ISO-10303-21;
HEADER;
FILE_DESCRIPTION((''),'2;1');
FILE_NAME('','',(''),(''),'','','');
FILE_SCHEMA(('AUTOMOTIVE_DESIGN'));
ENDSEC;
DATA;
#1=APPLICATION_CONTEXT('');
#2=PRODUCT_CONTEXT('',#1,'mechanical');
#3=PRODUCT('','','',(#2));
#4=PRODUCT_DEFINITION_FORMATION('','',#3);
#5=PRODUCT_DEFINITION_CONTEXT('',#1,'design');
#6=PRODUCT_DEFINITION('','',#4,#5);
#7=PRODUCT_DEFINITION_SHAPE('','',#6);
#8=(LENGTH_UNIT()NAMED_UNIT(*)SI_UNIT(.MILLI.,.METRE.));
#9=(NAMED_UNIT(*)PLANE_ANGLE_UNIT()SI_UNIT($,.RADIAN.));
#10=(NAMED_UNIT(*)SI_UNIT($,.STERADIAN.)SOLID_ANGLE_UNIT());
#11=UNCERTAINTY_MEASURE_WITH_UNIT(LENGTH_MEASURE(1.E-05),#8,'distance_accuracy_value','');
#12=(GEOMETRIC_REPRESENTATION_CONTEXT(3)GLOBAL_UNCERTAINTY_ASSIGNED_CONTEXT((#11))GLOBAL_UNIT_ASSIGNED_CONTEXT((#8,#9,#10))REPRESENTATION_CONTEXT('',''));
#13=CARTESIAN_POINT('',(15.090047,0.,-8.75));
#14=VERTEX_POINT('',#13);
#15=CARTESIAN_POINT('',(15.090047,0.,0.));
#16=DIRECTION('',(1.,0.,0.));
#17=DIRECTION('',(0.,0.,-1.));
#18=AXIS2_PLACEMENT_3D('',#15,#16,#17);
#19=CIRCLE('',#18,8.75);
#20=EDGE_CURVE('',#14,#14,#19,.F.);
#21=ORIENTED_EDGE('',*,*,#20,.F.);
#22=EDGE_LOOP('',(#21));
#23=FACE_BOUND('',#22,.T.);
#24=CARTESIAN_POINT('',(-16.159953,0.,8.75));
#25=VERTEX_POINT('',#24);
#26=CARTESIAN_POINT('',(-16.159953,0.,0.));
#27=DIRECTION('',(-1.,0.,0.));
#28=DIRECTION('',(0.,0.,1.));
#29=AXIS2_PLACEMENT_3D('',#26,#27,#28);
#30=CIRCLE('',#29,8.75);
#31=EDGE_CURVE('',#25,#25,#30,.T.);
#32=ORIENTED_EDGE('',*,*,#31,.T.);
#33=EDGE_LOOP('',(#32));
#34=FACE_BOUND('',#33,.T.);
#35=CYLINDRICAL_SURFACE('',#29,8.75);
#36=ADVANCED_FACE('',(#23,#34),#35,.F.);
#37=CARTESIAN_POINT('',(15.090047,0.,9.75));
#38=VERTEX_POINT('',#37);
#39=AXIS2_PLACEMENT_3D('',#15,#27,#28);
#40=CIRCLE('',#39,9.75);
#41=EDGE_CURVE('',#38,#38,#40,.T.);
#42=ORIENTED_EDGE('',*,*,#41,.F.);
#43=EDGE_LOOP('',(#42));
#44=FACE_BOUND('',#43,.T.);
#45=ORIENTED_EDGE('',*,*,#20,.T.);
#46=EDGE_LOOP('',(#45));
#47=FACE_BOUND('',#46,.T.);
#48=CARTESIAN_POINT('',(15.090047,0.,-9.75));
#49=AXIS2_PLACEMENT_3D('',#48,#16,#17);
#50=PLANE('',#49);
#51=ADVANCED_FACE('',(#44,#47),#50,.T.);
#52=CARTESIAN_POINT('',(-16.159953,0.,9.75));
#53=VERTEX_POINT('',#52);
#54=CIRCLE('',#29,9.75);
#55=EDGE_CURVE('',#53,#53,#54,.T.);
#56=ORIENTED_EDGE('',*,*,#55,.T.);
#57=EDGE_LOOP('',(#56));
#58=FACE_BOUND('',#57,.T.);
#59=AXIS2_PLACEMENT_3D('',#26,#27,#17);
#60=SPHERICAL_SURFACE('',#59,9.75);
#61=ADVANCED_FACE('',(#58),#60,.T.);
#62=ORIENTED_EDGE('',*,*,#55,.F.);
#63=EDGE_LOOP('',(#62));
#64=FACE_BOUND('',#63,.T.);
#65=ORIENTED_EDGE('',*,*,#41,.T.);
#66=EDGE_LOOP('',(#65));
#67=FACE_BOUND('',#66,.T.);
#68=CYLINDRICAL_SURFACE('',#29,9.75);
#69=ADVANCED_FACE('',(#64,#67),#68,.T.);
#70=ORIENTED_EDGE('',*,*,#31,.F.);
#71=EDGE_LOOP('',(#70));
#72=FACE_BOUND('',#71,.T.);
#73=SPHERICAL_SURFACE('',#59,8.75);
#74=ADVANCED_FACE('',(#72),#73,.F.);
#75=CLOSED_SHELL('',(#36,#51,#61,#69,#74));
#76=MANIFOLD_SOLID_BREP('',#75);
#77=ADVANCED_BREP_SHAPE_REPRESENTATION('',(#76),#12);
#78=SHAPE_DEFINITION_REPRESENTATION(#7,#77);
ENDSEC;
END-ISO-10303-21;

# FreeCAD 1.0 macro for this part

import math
import FreeCAD as App
import Part
import Sketcher

V = App.Vector


def faces_at(feature, points):
    """Names of the faces that lie closest to the given points."""
    faces = feature.Shape.Faces
    near = lambda p: min(range(len(faces)), key=lambda i: faces[i].distToShape(Part.Vertex(*p))[0])
    return sorted({f"Face{near(p) + 1}" for p in points})

doc = App.newDocument("Part")
params = doc.addObject("Spreadsheet::Sheet", "Params")
for row, (alias, value) in enumerate([
    ("sketch1_width", "41 mm"),
    ("sketch1_radius", "9.75 mm"),
    ("revolution_angle", "360 deg"),
    ("thickness_wall", "1 mm"),
], start=1):
    params.set(f"A{row}", alias)
    params.set(f"B{row}", "=" + value)
    params.setAlias(f"B{row}", alias)

body = doc.addObject("PartDesign::Body", "Body")

# Sketch on XZ plane
sketch1 = doc.addObject("Sketcher::SketchObject", "Sketch")
body.addObject(sketch1)
sketch1.AttachmentSupport = (doc.XZ_Plane, [""])
sketch1.MapMode = "FlatFace"
sketch1.addGeometry(Part.LineSegment(V(15, -10, 0), V(-16, -10, 0)), False)
sketch1.addGeometry(Part.ArcOfCircle(Part.Circle(V(-16, 0, 0), V(0, 0, 1), 10), math.radians(180), math.radians(270)), False)
sketch1.addGeometry(Part.LineSegment(V(-26, 0, 0), V(15, 0, 0)), False)
sketch1.addGeometry(Part.LineSegment(V(15, 0, 0), V(15, -10, 0)), False)
sketch1.addConstraint(Sketcher.Constraint("Tangent", 0, 2, 1, 2))
sketch1.addConstraint(Sketcher.Constraint("Coincident", 1, 1, 2, 1))
sketch1.addConstraint(Sketcher.Constraint("Coincident", 2, 2, 3, 1))
sketch1.addConstraint(Sketcher.Constraint("Coincident", 3, 2, 0, 1))
sketch1.addConstraint(Sketcher.Constraint("Horizontal", 0))
sketch1.addConstraint(Sketcher.Constraint("Horizontal", 2))
sketch1.addConstraint(Sketcher.Constraint("Vertical", 3))
sketch1.addConstraint(Sketcher.Constraint("PointOnObject", 1, 3, -1))
sketch1.addConstraint(Sketcher.Constraint("PointOnObject", 1, 1, -1))
sketch1.addConstraint(Sketcher.Constraint("DistanceX", 2, 1, 2, 2, 41.0))
sketch1.addConstraint(Sketcher.Constraint("Radius", 1, 9.75))
sketch1.addConstraint(Sketcher.Constraint("DistanceX", 1, 3, -1, 1, 16.159953))
sketch1.setExpression("Constraints[9]", "Params.sketch1_width")
sketch1.setExpression("Constraints[10]", "Params.sketch1_radius")
revolution = doc.addObject("PartDesign::Revolution", "Revolution")
body.addObject(revolution)
revolution.Profile = sketch1
revolution.ReferenceAxis = (sketch1, ["H_Axis"])
revolution.setExpression("Angle", "Params.revolution_angle")
doc.recompute()

thickness = doc.addObject("PartDesign::Thickness", "Thickness")
body.addObject(thickness)
thickness.Base = (revolution, faces_at(revolution, [(15.09, 0, 0)]))
thickness.setExpression("Value", "Params.thickness_wall")
thickness.Reversed = True
thickness.Join = "Intersection"

doc.recompute()
